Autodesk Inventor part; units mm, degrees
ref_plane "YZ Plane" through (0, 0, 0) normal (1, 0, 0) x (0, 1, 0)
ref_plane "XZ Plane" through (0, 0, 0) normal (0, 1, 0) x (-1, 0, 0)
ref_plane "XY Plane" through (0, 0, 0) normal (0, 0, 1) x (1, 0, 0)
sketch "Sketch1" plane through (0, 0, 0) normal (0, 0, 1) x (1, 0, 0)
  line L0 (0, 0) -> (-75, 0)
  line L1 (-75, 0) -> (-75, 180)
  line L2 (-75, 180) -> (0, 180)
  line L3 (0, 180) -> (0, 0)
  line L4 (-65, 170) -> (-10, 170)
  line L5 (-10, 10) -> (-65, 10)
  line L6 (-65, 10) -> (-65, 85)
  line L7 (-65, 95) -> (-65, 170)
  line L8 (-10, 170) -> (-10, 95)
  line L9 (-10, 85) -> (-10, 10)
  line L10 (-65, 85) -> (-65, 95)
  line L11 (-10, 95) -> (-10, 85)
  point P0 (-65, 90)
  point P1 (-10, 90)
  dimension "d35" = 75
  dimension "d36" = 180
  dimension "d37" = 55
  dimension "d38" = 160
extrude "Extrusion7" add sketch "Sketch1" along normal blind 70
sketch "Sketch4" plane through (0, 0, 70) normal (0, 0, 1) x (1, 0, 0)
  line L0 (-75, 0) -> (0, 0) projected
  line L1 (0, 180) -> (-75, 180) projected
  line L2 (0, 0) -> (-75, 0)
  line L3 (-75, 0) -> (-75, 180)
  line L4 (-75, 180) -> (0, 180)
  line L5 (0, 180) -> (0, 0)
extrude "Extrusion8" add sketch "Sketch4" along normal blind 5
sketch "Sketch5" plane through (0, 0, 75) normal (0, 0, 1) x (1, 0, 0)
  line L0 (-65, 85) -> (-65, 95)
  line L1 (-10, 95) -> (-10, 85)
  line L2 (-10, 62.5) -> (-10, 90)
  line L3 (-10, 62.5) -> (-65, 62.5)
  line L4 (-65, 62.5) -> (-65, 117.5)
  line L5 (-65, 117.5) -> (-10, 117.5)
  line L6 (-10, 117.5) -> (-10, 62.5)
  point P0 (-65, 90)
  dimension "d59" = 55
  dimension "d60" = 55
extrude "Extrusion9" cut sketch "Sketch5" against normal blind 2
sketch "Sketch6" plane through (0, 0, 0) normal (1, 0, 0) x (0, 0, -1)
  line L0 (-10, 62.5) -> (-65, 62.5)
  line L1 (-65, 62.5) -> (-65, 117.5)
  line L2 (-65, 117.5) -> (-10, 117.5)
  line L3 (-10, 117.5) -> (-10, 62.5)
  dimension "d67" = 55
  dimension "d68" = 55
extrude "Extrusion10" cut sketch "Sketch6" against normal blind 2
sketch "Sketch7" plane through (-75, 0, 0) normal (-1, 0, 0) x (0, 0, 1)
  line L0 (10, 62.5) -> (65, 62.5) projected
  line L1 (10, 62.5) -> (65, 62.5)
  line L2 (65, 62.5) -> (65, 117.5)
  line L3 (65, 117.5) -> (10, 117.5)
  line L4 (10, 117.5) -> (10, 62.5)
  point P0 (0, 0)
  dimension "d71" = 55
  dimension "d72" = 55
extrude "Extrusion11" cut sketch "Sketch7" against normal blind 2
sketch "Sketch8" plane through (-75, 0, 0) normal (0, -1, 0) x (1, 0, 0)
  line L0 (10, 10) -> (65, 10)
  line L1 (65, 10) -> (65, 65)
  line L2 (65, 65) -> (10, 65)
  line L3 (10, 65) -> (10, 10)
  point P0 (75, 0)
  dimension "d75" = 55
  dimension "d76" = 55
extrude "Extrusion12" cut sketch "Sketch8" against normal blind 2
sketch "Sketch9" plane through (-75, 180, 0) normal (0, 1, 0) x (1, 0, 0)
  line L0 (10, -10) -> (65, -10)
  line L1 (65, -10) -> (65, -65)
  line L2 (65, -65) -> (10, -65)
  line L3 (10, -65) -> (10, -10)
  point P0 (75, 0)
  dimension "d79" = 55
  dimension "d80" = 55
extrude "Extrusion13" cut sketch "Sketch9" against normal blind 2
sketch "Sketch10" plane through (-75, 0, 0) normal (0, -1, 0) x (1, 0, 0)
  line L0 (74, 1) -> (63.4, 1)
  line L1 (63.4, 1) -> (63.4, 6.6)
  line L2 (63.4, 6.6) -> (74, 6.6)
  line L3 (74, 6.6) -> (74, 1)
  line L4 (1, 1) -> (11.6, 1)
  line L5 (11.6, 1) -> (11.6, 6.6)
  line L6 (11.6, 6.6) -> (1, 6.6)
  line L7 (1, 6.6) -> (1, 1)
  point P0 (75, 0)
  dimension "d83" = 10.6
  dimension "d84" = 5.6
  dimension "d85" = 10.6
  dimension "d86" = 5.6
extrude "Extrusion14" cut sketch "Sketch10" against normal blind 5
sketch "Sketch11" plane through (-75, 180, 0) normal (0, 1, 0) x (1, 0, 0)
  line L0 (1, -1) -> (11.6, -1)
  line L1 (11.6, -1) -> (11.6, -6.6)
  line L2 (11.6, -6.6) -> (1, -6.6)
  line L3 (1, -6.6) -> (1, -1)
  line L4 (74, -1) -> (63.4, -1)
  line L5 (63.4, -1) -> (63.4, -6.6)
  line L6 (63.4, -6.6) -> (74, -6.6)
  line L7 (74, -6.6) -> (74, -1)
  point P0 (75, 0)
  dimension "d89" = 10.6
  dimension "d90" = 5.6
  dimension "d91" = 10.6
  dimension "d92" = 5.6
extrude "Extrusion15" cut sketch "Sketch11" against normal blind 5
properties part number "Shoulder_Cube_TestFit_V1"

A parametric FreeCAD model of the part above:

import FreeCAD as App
import Part
import Sketcher
Q = App.Units.Quantity


def add_polygon(sketch, points):
    """Adds a closed chain of lines whose ends are joined by coincident constraints."""
    first, n = sketch.GeometryCount, len(points)
    for a, b in zip(points, points[1:] + points[:1]):
        sketch.addGeometry(Part.LineSegment(App.Vector(*a, 0), App.Vector(*b, 0)), False)
    for i in range(n):
        sketch.addConstraint(Sketcher.Constraint("Coincident", first + i, 2, first + (i + 1) % n, 1))

doc = App.newDocument("Part")
params = doc.addObject("Spreadsheet::Sheet", "Params")
for row, (alias, value) in enumerate([
    ("sketch1_width", "75 mm"),
    ("sketch1_width2", "55 mm"),
    ("sketch1_height", "180 mm"),
    ("sketch1_height2", "160 mm"),
    ("pad1_length", "70 mm"),
    ("sketch2_width", "75 mm"),
    ("sketch2_height", "180 mm"),
    ("pad2_length", "5 mm"),
    ("sketch3_width", "55 mm"),
    ("pocket1_length", "2 mm"),
    ("sketch4_width", "55 mm"),
    ("pocket2_length", "2 mm"),
    ("sketch5_width", "55 mm"),
    ("pocket3_length", "2 mm"),
    ("sketch6_width", "55 mm"),
    ("pocket4_length", "2 mm"),
    ("sketch7_width", "55 mm"),
    ("pocket5_length", "2 mm"),
    ("sketch8_width", "10.6 mm"),
    ("sketch8_height", "5.6 mm"),
    ("pocket6_length", "5 mm"),
    ("sketch9_width", "10.6 mm"),
    ("sketch9_height", "5.6 mm"),
    ("pocket7_length", "5 mm"),
], start=1):
    params.set(f"A{row}", alias)
    params.set(f"B{row}", "=" + value)
    params.setAlias(f"B{row}", alias)

body = doc.addObject("PartDesign::Body", "Body")

sketch1 = doc.addObject("Sketcher::SketchObject", "Sketch")
body.addObject(sketch1)
sketch1.AttachmentSupport = (doc.XY_Plane, [""])
sketch1.MapMode = "FlatFace"
add_polygon(sketch1, [(-75, 0), (0, 0), (0, 180), (-75, 180)])
add_polygon(sketch1, [(-65, 10), (-65, 170), (-10, 170), (-10, 10)])
sketch1.addConstraint([
    Sketcher.Constraint("Horizontal", 0),
    Sketcher.Constraint("Vertical", 1),
    Sketcher.Constraint("Horizontal", 2),
    Sketcher.Constraint("Vertical", 3),
    Sketcher.Constraint("Vertical", 4),
    Sketcher.Constraint("Horizontal", 5),
    Sketcher.Constraint("Vertical", 6),
    Sketcher.Constraint("Horizontal", 7),
    Sketcher.Constraint("Coincident", 0, 2, -1, 1),
    Sketcher.Constraint("DistanceX", 0, 1, 0, 2, Q("75 mm")),
    Sketcher.Constraint("DistanceX", 5, 1, 5, 2, Q("55 mm")),
    Sketcher.Constraint("DistanceY", 1, 1, 1, 2, Q("180 mm")),
    Sketcher.Constraint("DistanceY", 4, 1, 4, 2, Q("160 mm")),
    Sketcher.Constraint("DistanceX", 4, 2, -1, 1, Q("65 mm")),
    Sketcher.Constraint("DistanceY", -1, 1, 4, 2, Q("170 mm")),
])
sketch1.setExpression("Constraints[17]", "Params.sketch1_width")
sketch1.setExpression("Constraints[18]", "Params.sketch1_width2")
sketch1.setExpression("Constraints[19]", "Params.sketch1_height")
sketch1.setExpression("Constraints[20]", "Params.sketch1_height2")
pad1 = doc.addObject("PartDesign::Pad", "Pad")
body.addObject(pad1)
pad1.Profile = sketch1
pad1.setExpression("Length", "Params.pad1_length")

sketch2 = doc.addObject("Sketcher::SketchObject", "Sketch001")
body.addObject(sketch2)
sketch2.AttachmentSupport = (doc.XY_Plane, [""])
sketch2.MapMode = "FlatFace"
sketch2.AttachmentOffset = App.Placement(App.Vector(0, 0, 70), App.Rotation())
add_polygon(sketch2, [(-75, 180), (-75, 0), (0, 0), (0, 180)])
sketch2.addConstraint([
    Sketcher.Constraint("Vertical", 0),
    Sketcher.Constraint("Horizontal", 1),
    Sketcher.Constraint("Vertical", 2),
    Sketcher.Constraint("Horizontal", 3),
    Sketcher.Constraint("Coincident", 1, 2, -1, 1),
    Sketcher.Constraint("DistanceX", 1, 1, 1, 2, Q("75 mm")),
    Sketcher.Constraint("DistanceY", 0, 2, 0, 1, Q("180 mm")),
])
sketch2.setExpression("Constraints[9]", "Params.sketch2_width")
sketch2.setExpression("Constraints[10]", "Params.sketch2_height")
pad2 = doc.addObject("PartDesign::Pad", "Pad001")
body.addObject(pad2)
pad2.Profile = sketch2
pad2.setExpression("Length", "Params.pad2_length")

sketch3 = doc.addObject("Sketcher::SketchObject", "Sketch002")
body.addObject(sketch3)
sketch3.AttachmentSupport = (doc.XY_Plane, [""])
sketch3.MapMode = "FlatFace"
sketch3.AttachmentOffset = App.Placement(App.Vector(0, 0, 75), App.Rotation())
add_polygon(sketch3, [(-65, 117.5), (-65, 62.5), (-10, 62.5), (-10, 117.5)])
sketch3.addConstraint([
    Sketcher.Constraint("Vertical", 0),
    Sketcher.Constraint("Horizontal", 1),
    Sketcher.Constraint("Vertical", 2),
    Sketcher.Constraint("Horizontal", 3),
    Sketcher.Constraint("Equal", 3, 0),
    Sketcher.Constraint("DistanceX", 1, 1, 1, 2, Q("55 mm")),
    Sketcher.Constraint("DistanceX", 0, 2, -1, 1, Q("65 mm")),
    Sketcher.Constraint("DistanceY", -1, 1, 0, 2, Q("62.5 mm")),
])
sketch3.setExpression("Constraints[9]", "Params.sketch3_width")
pocket1 = doc.addObject("PartDesign::Pocket", "Pocket")
body.addObject(pocket1)
pocket1.Profile = sketch3
pocket1.setExpression("Length", "Params.pocket1_length")

sketch4 = doc.addObject("Sketcher::SketchObject", "Sketch003")
body.addObject(sketch4)
sketch4.AttachmentSupport = (doc.YZ_Plane, [""])
sketch4.MapMode = "FlatFace"
add_polygon(sketch4, [(62.5, 65), (62.5, 10), (117.5, 10), (117.5, 65)])
sketch4.addConstraint([
    Sketcher.Constraint("Vertical", 0),
    Sketcher.Constraint("Horizontal", 1),
    Sketcher.Constraint("Vertical", 2),
    Sketcher.Constraint("Horizontal", 3),
    Sketcher.Constraint("Equal", 3, 0),
    Sketcher.Constraint("DistanceX", 1, 1, 1, 2, Q("55 mm")),
    Sketcher.Constraint("DistanceY", -1, 1, 0, 2, Q("10 mm")),
    Sketcher.Constraint("DistanceX", -1, 1, 0, 2, Q("62.5 mm")),
])
sketch4.setExpression("Constraints[9]", "Params.sketch4_width")
pocket2 = doc.addObject("PartDesign::Pocket", "Pocket001")
body.addObject(pocket2)
pocket2.Profile = sketch4
pocket2.setExpression("Length", "Params.pocket2_length")

sketch5 = doc.addObject("Sketcher::SketchObject", "Sketch004")
body.addObject(sketch5)
sketch5.AttachmentSupport = (doc.YZ_Plane, [""])
sketch5.MapMode = "FlatFace"
sketch5.AttachmentOffset = App.Placement(App.Vector(0, 0, -75), App.Rotation())
add_polygon(sketch5, [(117.5, 10), (62.5, 10), (62.5, 65), (117.5, 65)])
sketch5.addConstraint([
    Sketcher.Constraint("Horizontal", 0),
    Sketcher.Constraint("Vertical", 1),
    Sketcher.Constraint("Horizontal", 2),
    Sketcher.Constraint("Vertical", 3),
    Sketcher.Constraint("Equal", 2, 1),
    Sketcher.Constraint("DistanceX", 0, 2, 0, 1, Q("55 mm")),
    Sketcher.Constraint("DistanceY", -1, 1, 0, 2, Q("10 mm")),
    Sketcher.Constraint("DistanceX", -1, 1, 0, 2, Q("62.5 mm")),
])
sketch5.setExpression("Constraints[9]", "Params.sketch5_width")
pocket3 = doc.addObject("PartDesign::Pocket", "Pocket002")
body.addObject(pocket3)
pocket3.Profile = sketch5
pocket3.setExpression("Length", "Params.pocket3_length")
pocket3.Reversed = True

sketch6 = doc.addObject("Sketcher::SketchObject", "Sketch005")
body.addObject(sketch6)
sketch6.AttachmentSupport = (doc.XZ_Plane, [""])
sketch6.MapMode = "FlatFace"
add_polygon(sketch6, [(-65, 65), (-65, 10), (-10, 10), (-10, 65)])
sketch6.addConstraint([
    Sketcher.Constraint("Vertical", 0),
    Sketcher.Constraint("Horizontal", 1),
    Sketcher.Constraint("Vertical", 2),
    Sketcher.Constraint("Horizontal", 3),
    Sketcher.Constraint("Equal", 3, 0),
    Sketcher.Constraint("DistanceX", 1, 1, 1, 2, Q("55 mm")),
    Sketcher.Constraint("DistanceX", 0, 2, -1, 1, Q("65 mm")),
    Sketcher.Constraint("DistanceY", -1, 1, 0, 2, Q("10 mm")),
])
sketch6.setExpression("Constraints[9]", "Params.sketch6_width")
pocket4 = doc.addObject("PartDesign::Pocket", "Pocket003")
body.addObject(pocket4)
pocket4.Profile = sketch6
pocket4.setExpression("Length", "Params.pocket4_length")

sketch7 = doc.addObject("Sketcher::SketchObject", "Sketch006")
body.addObject(sketch7)
sketch7.AttachmentSupport = (doc.XZ_Plane, [""])
sketch7.MapMode = "FlatFace"
sketch7.AttachmentOffset = App.Placement(App.Vector(0, 0, -180), App.Rotation())
add_polygon(sketch7, [(-10, 10), (-65, 10), (-65, 65), (-10, 65)])
sketch7.addConstraint([
    Sketcher.Constraint("Horizontal", 0),
    Sketcher.Constraint("Vertical", 1),
    Sketcher.Constraint("Horizontal", 2),
    Sketcher.Constraint("Vertical", 3),
    Sketcher.Constraint("Equal", 2, 1),
    Sketcher.Constraint("DistanceX", 0, 2, 0, 1, Q("55 mm")),
    Sketcher.Constraint("DistanceX", 0, 2, -1, 1, Q("65 mm")),
    Sketcher.Constraint("DistanceY", -1, 1, 0, 2, Q("10 mm")),
])
sketch7.setExpression("Constraints[9]", "Params.sketch7_width")
pocket5 = doc.addObject("PartDesign::Pocket", "Pocket004")
body.addObject(pocket5)
pocket5.Profile = sketch7
pocket5.setExpression("Length", "Params.pocket5_length")
pocket5.Reversed = True

sketch8 = doc.addObject("Sketcher::SketchObject", "Sketch007")
body.addObject(sketch8)
sketch8.AttachmentSupport = (doc.XZ_Plane, [""])
sketch8.MapMode = "FlatFace"
add_polygon(sketch8, [(-11.6, 1), (-1, 1), (-1, 6.6), (-11.6, 6.6)])
add_polygon(sketch8, [(-74, 6.6), (-74, 1), (-63.4, 1), (-63.4, 6.6)])
sketch8.addConstraint([
    Sketcher.Constraint("Horizontal", 0),
    Sketcher.Constraint("Vertical", 1),
    Sketcher.Constraint("Horizontal", 2),
    Sketcher.Constraint("Vertical", 3),
    Sketcher.Constraint("Vertical", 4),
    Sketcher.Constraint("Horizontal", 5),
    Sketcher.Constraint("Vertical", 6),
    Sketcher.Constraint("Horizontal", 7),
    Sketcher.Constraint("Horizontal", 3, 2, 4, 2),
    Sketcher.Constraint("Horizontal", 2, 2, 6, 2),
    Sketcher.Constraint("Equal", 2, 5),
    Sketcher.Constraint("DistanceX", 0, 1, 0, 2, Q("10.6 mm")),
    Sketcher.Constraint("DistanceY", 1, 1, 1, 2, Q("5.6 mm")),
    Sketcher.Constraint("DistanceX", 0, 2, -1, 1, Q("1 mm")),
    Sketcher.Constraint("DistanceY", -1, 1, 0, 2, Q("1 mm")),
    Sketcher.Constraint("DistanceX", 4, 2, -1, 1, Q("74 mm")),
])
sketch8.setExpression("Constraints[19]", "Params.sketch8_width")
sketch8.setExpression("Constraints[20]", "Params.sketch8_height")
pocket6 = doc.addObject("PartDesign::Pocket", "Pocket005")
body.addObject(pocket6)
pocket6.Profile = sketch8
pocket6.setExpression("Length", "Params.pocket6_length")

sketch9 = doc.addObject("Sketcher::SketchObject", "Sketch008")
body.addObject(sketch9)
sketch9.AttachmentSupport = (doc.XZ_Plane, [""])
sketch9.MapMode = "FlatFace"
sketch9.AttachmentOffset = App.Placement(App.Vector(0, 0, -180), App.Rotation())
add_polygon(sketch9, [(-63.4, 1), (-74, 1), (-74, 6.6), (-63.4, 6.6)])
add_polygon(sketch9, [(-1, 6.6), (-1, 1), (-11.6, 1), (-11.6, 6.6)])
sketch9.addConstraint([
    Sketcher.Constraint("Horizontal", 0),
    Sketcher.Constraint("Vertical", 1),
    Sketcher.Constraint("Horizontal", 2),
    Sketcher.Constraint("Vertical", 3),
    Sketcher.Constraint("Vertical", 4),
    Sketcher.Constraint("Horizontal", 5),
    Sketcher.Constraint("Vertical", 6),
    Sketcher.Constraint("Horizontal", 7),
    Sketcher.Constraint("Horizontal", 3, 2, 4, 2),
    Sketcher.Constraint("Horizontal", 2, 2, 6, 2),
    Sketcher.Constraint("Equal", 2, 5),
    Sketcher.Constraint("DistanceX", 0, 2, 0, 1, Q("10.6 mm")),
    Sketcher.Constraint("DistanceY", 1, 1, 1, 2, Q("5.6 mm")),
    Sketcher.Constraint("DistanceX", 0, 2, -1, 1, Q("74 mm")),
    Sketcher.Constraint("DistanceY", -1, 1, 0, 2, Q("1 mm")),
    Sketcher.Constraint("DistanceX", 4, 2, -1, 1, Q("1 mm")),
])
sketch9.setExpression("Constraints[19]", "Params.sketch9_width")
sketch9.setExpression("Constraints[20]", "Params.sketch9_height")
pocket7 = doc.addObject("PartDesign::Pocket", "Pocket006")
body.addObject(pocket7)
pocket7.Profile = sketch9
pocket7.setExpression("Length", "Params.pocket7_length")
pocket7.Reversed = True

doc.recompute()
